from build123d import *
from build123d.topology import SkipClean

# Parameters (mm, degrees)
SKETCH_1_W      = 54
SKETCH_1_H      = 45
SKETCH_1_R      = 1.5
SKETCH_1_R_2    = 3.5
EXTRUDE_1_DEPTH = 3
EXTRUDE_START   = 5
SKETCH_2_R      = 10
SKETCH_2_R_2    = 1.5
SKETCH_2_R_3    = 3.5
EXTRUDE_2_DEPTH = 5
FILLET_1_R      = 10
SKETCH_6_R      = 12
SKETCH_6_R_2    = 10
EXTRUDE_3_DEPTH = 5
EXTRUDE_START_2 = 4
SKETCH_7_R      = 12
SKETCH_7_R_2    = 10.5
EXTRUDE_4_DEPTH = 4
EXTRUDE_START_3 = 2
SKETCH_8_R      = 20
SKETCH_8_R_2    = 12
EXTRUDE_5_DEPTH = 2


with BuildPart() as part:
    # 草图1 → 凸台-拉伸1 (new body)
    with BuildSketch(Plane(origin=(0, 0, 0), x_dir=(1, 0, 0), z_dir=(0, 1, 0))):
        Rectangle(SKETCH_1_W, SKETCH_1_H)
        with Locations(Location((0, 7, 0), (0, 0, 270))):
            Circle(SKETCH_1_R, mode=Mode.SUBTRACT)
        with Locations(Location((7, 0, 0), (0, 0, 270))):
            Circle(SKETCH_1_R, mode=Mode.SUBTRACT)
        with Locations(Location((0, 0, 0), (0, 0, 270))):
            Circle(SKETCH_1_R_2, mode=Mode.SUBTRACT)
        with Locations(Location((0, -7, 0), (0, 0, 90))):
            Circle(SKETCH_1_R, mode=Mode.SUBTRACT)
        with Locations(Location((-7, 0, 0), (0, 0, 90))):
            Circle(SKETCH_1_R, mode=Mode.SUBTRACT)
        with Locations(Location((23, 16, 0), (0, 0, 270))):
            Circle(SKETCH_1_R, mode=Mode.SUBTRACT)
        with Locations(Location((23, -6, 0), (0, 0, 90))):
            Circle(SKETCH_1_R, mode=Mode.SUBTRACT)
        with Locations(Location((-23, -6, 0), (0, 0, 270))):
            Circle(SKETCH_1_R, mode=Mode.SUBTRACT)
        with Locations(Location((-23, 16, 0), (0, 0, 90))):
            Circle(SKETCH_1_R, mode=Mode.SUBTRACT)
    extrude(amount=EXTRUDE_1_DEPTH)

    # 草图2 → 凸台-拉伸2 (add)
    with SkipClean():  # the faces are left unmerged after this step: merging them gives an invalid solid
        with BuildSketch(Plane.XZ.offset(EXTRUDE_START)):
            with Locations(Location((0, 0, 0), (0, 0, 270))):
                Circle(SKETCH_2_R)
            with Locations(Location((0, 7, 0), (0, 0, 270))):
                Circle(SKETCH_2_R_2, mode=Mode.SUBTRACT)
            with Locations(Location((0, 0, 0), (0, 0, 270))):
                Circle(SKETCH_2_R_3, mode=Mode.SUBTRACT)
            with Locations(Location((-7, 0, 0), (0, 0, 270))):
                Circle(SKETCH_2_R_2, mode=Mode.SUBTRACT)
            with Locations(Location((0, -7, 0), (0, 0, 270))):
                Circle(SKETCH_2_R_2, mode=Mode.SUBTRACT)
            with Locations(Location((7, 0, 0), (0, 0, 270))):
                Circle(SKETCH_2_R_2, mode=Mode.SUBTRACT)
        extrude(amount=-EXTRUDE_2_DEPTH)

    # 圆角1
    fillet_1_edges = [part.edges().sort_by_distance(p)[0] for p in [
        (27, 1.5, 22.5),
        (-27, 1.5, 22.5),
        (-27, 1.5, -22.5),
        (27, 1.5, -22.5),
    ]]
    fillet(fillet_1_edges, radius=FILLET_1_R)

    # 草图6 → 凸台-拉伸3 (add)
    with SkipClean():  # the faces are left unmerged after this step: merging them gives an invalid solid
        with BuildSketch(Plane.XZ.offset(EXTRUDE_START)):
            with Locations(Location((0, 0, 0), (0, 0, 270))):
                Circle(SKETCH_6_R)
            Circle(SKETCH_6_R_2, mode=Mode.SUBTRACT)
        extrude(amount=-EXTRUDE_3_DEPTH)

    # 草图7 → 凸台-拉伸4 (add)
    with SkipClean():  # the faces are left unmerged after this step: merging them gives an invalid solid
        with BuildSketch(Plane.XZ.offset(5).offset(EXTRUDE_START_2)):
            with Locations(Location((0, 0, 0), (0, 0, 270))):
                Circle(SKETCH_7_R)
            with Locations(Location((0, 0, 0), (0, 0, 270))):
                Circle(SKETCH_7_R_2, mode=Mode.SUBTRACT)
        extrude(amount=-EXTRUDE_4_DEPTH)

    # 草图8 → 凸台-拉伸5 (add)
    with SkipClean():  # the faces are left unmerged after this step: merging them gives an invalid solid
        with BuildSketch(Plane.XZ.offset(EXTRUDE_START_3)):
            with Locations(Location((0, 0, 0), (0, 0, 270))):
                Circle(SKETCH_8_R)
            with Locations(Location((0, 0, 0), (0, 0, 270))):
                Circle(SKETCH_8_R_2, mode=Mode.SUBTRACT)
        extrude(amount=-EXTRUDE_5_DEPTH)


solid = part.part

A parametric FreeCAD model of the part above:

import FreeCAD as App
import Part
import Sketcher

V = App.Vector
Q = App.Units.Quantity


def edges_at(feature, points):
    """Names of the edges that pass closest to the given points."""
    edges = feature.Shape.Edges
    near = lambda p: min(range(len(edges)), key=lambda i: edges[i].distToShape(Part.Vertex(*p))[0])
    return sorted({f"Edge{near(p) + 1}" for p in points})


def add_polygon(sketch, points):
    """Adds a closed chain of lines whose ends are joined by coincident constraints."""
    first, n = sketch.GeometryCount, len(points)
    for a, b in zip(points, points[1:] + points[:1]):
        sketch.addGeometry(Part.LineSegment(App.Vector(*a, 0), App.Vector(*b, 0)), False)
    for i in range(n):
        sketch.addConstraint(Sketcher.Constraint("Coincident", first + i, 2, first + (i + 1) % n, 1))

doc = App.newDocument("Part")
body = doc.addObject("PartDesign::Body", "Body")

# Sketch on XZ plane
sketch1 = body.newObject("Sketcher::SketchObject", "Sketch")
sketch1.AttachmentSupport = (doc.getObject("XZ_Plane"), [""])
sketch1.MapMode = "FlatFace"
add_polygon(sketch1, [(-27, -22.5), (-27, 22.5), (27, 22.5), (27, -22.5)])  # lines 0-3
sketch1.addGeometry(Part.Circle(V(-23, 6, 0), V(0, 0, 1), 1.5), False)  # 4
sketch1.addGeometry(Part.Circle(V(0, 7, 0), V(0, 0, 1), 1.5), False)  # 5
sketch1.addGeometry(Part.Circle(V(-7, 0, 0), V(0, 0, 1), 1.5), False)  # 6
sketch1.addGeometry(Part.Circle(V(0, 0, 0), V(0, 0, 1), 3.5), False)  # 7
sketch1.addGeometry(Part.Circle(V(23, 6, 0), V(0, 0, 1), 1.5), False)  # 8
sketch1.addGeometry(Part.Circle(V(7, 0, 0), V(0, 0, 1), 1.5), False)  # 9
sketch1.addGeometry(Part.Circle(V(0, -7, 0), V(0, 0, 1), 1.5), False)  # 10
sketch1.addGeometry(Part.Circle(V(-23, -16, 0), V(0, 0, 1), 1.5), False)  # 11
sketch1.addGeometry(Part.Circle(V(23, -16, 0), V(0, 0, 1), 1.5), False)  # 12
sketch1.addConstraint([
    Sketcher.Constraint("Vertical", 0),
    Sketcher.Constraint("Horizontal", 1),
    Sketcher.Constraint("Vertical", 2),
    Sketcher.Constraint("Horizontal", 3),
    Sketcher.Constraint("Coincident", 7, 3, -1, 1),
    Sketcher.Constraint("Equal", 4, 5),
    Sketcher.Constraint("Equal", 5, 6),
    Sketcher.Constraint("Equal", 6, 8),
    Sketcher.Constraint("Equal", 8, 9),
    Sketcher.Constraint("Equal", 9, 10),
    Sketcher.Constraint("Equal", 10, 11),
    Sketcher.Constraint("Equal", 11, 12),
    Sketcher.Constraint("Symmetric", 6, 3, 9, 3, -1, 1),
    Sketcher.Constraint("Symmetric", 5, 3, 10, 3, -1, 1),
    Sketcher.Constraint("Symmetric", 0, 2, 2, 2, -1, 1),
    Sketcher.Constraint("Symmetric", 4, 3, 8, 3, -2),
    Sketcher.Constraint("Symmetric", 11, 3, 12, 3, -2),
    Sketcher.Constraint("PointOnObject", 5, 3, -2),
    Sketcher.Constraint("PointOnObject", 6, 3, -1),
    Sketcher.Constraint("Vertical", 4, 3, 11, 3),
    Sketcher.Constraint("Diameter", 4, Q("3 mm")),
    Sketcher.Constraint("Diameter", 7, Q("7 mm")),
    Sketcher.Constraint("DistanceX", 1, 1, 1, 2, Q("54 mm")),
    Sketcher.Constraint("DistanceY", 0, 1, 0, 2, Q("45 mm")),
    Sketcher.Constraint("DistanceX", 4, 3, -1, 1, Q("23 mm")),
    Sketcher.Constraint("DistanceY", -1, 1, 4, 3, Q("6 mm")),
    Sketcher.Constraint("DistanceY", -1, 1, 5, 3, Q("7 mm")),
    Sketcher.Constraint("DistanceX", 6, 3, -1, 1, Q("7 mm")),
    Sketcher.Constraint("DistanceY", 11, 3, -1, 1, Q("16 mm")),
])
pad1 = body.newObject("PartDesign::Pad", "Pad")
pad1.Profile = sketch1
pad1.Length = 3
pad1.Reversed = True

# Sketch on XZ plane
sketch2 = body.newObject("Sketcher::SketchObject", "Sketch001")
sketch2.AttachmentSupport = (doc.getObject("XZ_Plane"), [""])
sketch2.MapMode = "FlatFace"
sketch2.AttachmentOffset = App.Placement(V(0, 0, 5), App.Rotation())
sketch2.addGeometry([
    Part.Circle(V(0, 0, 0), V(0, 0, 1), 10),  # 0
    Part.Circle(V(0, 7, 0), V(0, 0, 1), 1.5),  # 1
    Part.Circle(V(-7, 0, 0), V(0, 0, 1), 1.5),  # 2
    Part.Circle(V(7, 0, 0), V(0, 0, 1), 1.5),  # 3
    Part.Circle(V(0, 0, 0), V(0, 0, 1), 3.5),  # 4
    Part.Circle(V(0, -7, 0), V(0, 0, 1), 1.5),  # 5
], False)
sketch2.addConstraint([
    Sketcher.Constraint("Coincident", 0, 3, -1, 1),
    Sketcher.Constraint("Coincident", 4, 3, -1, 1),
    Sketcher.Constraint("Equal", 1, 2),
    Sketcher.Constraint("Equal", 2, 3),
    Sketcher.Constraint("Equal", 3, 5),
    Sketcher.Constraint("Symmetric", 2, 3, 3, 3, -1, 1),
    Sketcher.Constraint("Symmetric", 1, 3, 5, 3, -1, 1),
    Sketcher.Constraint("PointOnObject", 1, 3, -2),
    Sketcher.Constraint("PointOnObject", 2, 3, -1),
    Sketcher.Constraint("Diameter", 0, Q("20 mm")),
    Sketcher.Constraint("Diameter", 1, Q("3 mm")),
    Sketcher.Constraint("Diameter", 4, Q("7 mm")),
    Sketcher.Constraint("DistanceY", -1, 1, 1, 3, Q("7 mm")),
    Sketcher.Constraint("DistanceX", 2, 3, -1, 1, Q("7 mm")),
])
pad2 = body.newObject("PartDesign::Pad", "Pad001")
pad2.Profile = sketch2
pad2.Length = 5
pad2.Reversed = True
doc.recompute()

fillet = body.newObject("PartDesign::Fillet", "Fillet")
fillet.Base = (pad2, edges_at(pad2, [
    (27, 1.5, 22.5),
    (-27, 1.5, 22.5),
    (-27, 1.5, -22.5),
    (27, 1.5, -22.5),
]))
fillet.Radius = 10

# Sketch on XZ plane
sketch3 = body.newObject("Sketcher::SketchObject", "Sketch002")
sketch3.AttachmentSupport = (doc.getObject("XZ_Plane"), [""])
sketch3.MapMode = "FlatFace"
sketch3.AttachmentOffset = App.Placement(V(0, 0, 5), App.Rotation())
sketch3.addGeometry([
    Part.Circle(V(0, 0, 0), V(0, 0, 1), 12),
    Part.Circle(V(0, 0, 0), V(0, 0, 1), 10),
], False)
sketch3.addConstraint([
    Sketcher.Constraint("Coincident", 0, 3, -1, 1),
    Sketcher.Constraint("Coincident", 1, 3, -1, 1),
    Sketcher.Constraint("Diameter", 0, Q("24 mm")),
    Sketcher.Constraint("Diameter", 1, Q("20 mm")),
])
pad3 = body.newObject("PartDesign::Pad", "Pad002")
pad3.Profile = sketch3
pad3.Length = 5
pad3.Reversed = True

# Sketch on XZ plane
sketch4 = body.newObject("Sketcher::SketchObject", "Sketch003")
sketch4.AttachmentSupport = (doc.getObject("XZ_Plane"), [""])
sketch4.MapMode = "FlatFace"
sketch4.AttachmentOffset = App.Placement(V(0, 0, 9), App.Rotation())
sketch4.addGeometry([
    Part.Circle(V(0, 0, 0), V(0, 0, 1), 12),
    Part.Circle(V(0, 0, 0), V(0, 0, 1), 10),
], False)
sketch4.addConstraint([
    Sketcher.Constraint("Coincident", 0, 3, -1, 1),
    Sketcher.Constraint("Coincident", 1, 3, -1, 1),
    Sketcher.Constraint("Diameter", 0, Q("24 mm")),
    Sketcher.Constraint("Diameter", 1, Q("21 mm")),
])
pad4 = body.newObject("PartDesign::Pad", "Pad003")
pad4.Profile = sketch4
pad4.Length = 4
pad4.Reversed = True

# Sketch on XZ plane
sketch5 = body.newObject("Sketcher::SketchObject", "Sketch004")
sketch5.AttachmentSupport = (doc.getObject("XZ_Plane"), [""])
sketch5.MapMode = "FlatFace"
sketch5.AttachmentOffset = App.Placement(V(0, 0, 2), App.Rotation())
sketch5.addGeometry([
    Part.Circle(V(0, 0, 0), V(0, 0, 1), 20),
    Part.Circle(V(0, 0, 0), V(0, 0, 1), 12),
], False)
sketch5.addConstraint([
    Sketcher.Constraint("Coincident", 0, 3, -1, 1),
    Sketcher.Constraint("Coincident", 1, 3, -1, 1),
    Sketcher.Constraint("Diameter", 0, Q("40 mm")),
    Sketcher.Constraint("Diameter", 1, Q("24 mm")),
])
pad5 = body.newObject("PartDesign::Pad", "Pad004")
pad5.Profile = sketch5
pad5.Length = 2
pad5.Reversed = True

doc.recompute()
